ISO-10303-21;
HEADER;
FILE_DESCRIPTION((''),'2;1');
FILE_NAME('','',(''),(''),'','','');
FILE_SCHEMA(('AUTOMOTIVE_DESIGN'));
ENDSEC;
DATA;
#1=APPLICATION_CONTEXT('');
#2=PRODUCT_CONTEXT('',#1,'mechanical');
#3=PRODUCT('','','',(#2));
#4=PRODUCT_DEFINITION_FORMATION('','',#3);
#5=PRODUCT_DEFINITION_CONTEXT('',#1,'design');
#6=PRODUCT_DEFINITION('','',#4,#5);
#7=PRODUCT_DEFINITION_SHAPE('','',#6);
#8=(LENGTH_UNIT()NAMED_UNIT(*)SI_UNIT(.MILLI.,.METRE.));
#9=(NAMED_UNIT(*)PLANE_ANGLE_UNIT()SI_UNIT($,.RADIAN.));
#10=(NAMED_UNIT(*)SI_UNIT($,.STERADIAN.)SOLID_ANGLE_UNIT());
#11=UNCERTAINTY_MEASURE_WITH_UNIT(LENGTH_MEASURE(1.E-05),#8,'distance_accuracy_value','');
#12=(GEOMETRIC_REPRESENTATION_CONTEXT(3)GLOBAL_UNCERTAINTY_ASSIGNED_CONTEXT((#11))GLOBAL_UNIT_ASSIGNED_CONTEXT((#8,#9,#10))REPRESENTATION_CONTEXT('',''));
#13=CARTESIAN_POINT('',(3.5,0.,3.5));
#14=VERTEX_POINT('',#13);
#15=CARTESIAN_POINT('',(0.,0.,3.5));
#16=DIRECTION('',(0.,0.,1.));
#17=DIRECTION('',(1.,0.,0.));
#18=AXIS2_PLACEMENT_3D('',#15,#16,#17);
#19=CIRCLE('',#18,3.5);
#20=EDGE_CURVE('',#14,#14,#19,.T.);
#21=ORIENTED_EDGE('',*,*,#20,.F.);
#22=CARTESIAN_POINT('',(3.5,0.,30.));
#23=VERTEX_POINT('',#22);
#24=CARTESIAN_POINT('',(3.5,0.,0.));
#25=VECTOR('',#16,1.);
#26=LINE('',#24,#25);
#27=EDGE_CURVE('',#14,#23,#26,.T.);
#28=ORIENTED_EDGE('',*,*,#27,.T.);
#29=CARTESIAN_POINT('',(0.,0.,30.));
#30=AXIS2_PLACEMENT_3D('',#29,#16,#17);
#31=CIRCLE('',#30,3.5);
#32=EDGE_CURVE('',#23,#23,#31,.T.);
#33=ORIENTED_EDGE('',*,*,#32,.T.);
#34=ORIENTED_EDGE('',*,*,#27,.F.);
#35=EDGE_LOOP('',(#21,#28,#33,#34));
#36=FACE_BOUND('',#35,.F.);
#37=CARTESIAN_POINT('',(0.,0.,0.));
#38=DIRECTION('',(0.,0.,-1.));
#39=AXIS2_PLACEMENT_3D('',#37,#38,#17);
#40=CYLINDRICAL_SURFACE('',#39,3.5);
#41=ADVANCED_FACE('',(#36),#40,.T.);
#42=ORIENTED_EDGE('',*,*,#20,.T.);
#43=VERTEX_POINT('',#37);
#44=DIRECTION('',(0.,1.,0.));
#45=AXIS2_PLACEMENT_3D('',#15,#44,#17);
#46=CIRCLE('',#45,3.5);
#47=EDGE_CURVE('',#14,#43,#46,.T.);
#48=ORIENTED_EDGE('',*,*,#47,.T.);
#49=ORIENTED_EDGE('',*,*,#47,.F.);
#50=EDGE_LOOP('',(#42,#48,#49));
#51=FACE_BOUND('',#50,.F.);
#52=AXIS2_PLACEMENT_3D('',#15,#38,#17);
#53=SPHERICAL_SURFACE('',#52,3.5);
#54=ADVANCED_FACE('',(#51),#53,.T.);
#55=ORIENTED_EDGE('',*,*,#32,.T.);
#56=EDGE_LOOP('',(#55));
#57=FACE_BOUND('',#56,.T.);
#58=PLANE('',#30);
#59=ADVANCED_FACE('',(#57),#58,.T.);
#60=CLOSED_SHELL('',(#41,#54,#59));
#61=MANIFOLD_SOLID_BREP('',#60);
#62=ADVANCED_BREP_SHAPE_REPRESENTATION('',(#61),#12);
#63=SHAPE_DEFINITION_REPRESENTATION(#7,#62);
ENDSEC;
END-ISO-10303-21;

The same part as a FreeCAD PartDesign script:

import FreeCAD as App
import Part
import Sketcher
from FreeCAD import Vector
Q = App.Units.Quantity


def edges_at(feature, points):
    """Names of the edges that pass closest to the given points."""
    edges = feature.Shape.Edges
    near = lambda p: min(range(len(edges)), key=lambda i: edges[i].distToShape(Part.Vertex(*p))[0])
    return sorted({f"Edge{near(p) + 1}" for p in points})

doc = App.newDocument("Part")
body = doc.addObject("PartDesign::Body", "Body")

sketch1 = body.newObject("Sketcher::SketchObject", "Sketch")
sketch1.AttachmentSupport = (doc.getObject("XY_Plane"), [""])
sketch1.MapMode = "FlatFace"
sketch1.addGeometry(Part.Circle(Vector(0, 0, 0), Vector(0, 0, 1), 3.5), False)
sketch1.addConstraint([
    Sketcher.Constraint("Coincident", 0, 3, -1, 1),
    Sketcher.Constraint("Diameter", 0, Q("7 mm")),
])
pad1 = body.newObject("PartDesign::Pad", "Pad")
pad1.Profile = sketch1
pad1.Length = 30
doc.recompute()

fillet = body.newObject("PartDesign::Fillet", "Fillet")
fillet.Base = (pad1, edges_at(pad1, [(-3.5, 0, 0)]))
fillet.Radius = 3.5

doc.recompute()
